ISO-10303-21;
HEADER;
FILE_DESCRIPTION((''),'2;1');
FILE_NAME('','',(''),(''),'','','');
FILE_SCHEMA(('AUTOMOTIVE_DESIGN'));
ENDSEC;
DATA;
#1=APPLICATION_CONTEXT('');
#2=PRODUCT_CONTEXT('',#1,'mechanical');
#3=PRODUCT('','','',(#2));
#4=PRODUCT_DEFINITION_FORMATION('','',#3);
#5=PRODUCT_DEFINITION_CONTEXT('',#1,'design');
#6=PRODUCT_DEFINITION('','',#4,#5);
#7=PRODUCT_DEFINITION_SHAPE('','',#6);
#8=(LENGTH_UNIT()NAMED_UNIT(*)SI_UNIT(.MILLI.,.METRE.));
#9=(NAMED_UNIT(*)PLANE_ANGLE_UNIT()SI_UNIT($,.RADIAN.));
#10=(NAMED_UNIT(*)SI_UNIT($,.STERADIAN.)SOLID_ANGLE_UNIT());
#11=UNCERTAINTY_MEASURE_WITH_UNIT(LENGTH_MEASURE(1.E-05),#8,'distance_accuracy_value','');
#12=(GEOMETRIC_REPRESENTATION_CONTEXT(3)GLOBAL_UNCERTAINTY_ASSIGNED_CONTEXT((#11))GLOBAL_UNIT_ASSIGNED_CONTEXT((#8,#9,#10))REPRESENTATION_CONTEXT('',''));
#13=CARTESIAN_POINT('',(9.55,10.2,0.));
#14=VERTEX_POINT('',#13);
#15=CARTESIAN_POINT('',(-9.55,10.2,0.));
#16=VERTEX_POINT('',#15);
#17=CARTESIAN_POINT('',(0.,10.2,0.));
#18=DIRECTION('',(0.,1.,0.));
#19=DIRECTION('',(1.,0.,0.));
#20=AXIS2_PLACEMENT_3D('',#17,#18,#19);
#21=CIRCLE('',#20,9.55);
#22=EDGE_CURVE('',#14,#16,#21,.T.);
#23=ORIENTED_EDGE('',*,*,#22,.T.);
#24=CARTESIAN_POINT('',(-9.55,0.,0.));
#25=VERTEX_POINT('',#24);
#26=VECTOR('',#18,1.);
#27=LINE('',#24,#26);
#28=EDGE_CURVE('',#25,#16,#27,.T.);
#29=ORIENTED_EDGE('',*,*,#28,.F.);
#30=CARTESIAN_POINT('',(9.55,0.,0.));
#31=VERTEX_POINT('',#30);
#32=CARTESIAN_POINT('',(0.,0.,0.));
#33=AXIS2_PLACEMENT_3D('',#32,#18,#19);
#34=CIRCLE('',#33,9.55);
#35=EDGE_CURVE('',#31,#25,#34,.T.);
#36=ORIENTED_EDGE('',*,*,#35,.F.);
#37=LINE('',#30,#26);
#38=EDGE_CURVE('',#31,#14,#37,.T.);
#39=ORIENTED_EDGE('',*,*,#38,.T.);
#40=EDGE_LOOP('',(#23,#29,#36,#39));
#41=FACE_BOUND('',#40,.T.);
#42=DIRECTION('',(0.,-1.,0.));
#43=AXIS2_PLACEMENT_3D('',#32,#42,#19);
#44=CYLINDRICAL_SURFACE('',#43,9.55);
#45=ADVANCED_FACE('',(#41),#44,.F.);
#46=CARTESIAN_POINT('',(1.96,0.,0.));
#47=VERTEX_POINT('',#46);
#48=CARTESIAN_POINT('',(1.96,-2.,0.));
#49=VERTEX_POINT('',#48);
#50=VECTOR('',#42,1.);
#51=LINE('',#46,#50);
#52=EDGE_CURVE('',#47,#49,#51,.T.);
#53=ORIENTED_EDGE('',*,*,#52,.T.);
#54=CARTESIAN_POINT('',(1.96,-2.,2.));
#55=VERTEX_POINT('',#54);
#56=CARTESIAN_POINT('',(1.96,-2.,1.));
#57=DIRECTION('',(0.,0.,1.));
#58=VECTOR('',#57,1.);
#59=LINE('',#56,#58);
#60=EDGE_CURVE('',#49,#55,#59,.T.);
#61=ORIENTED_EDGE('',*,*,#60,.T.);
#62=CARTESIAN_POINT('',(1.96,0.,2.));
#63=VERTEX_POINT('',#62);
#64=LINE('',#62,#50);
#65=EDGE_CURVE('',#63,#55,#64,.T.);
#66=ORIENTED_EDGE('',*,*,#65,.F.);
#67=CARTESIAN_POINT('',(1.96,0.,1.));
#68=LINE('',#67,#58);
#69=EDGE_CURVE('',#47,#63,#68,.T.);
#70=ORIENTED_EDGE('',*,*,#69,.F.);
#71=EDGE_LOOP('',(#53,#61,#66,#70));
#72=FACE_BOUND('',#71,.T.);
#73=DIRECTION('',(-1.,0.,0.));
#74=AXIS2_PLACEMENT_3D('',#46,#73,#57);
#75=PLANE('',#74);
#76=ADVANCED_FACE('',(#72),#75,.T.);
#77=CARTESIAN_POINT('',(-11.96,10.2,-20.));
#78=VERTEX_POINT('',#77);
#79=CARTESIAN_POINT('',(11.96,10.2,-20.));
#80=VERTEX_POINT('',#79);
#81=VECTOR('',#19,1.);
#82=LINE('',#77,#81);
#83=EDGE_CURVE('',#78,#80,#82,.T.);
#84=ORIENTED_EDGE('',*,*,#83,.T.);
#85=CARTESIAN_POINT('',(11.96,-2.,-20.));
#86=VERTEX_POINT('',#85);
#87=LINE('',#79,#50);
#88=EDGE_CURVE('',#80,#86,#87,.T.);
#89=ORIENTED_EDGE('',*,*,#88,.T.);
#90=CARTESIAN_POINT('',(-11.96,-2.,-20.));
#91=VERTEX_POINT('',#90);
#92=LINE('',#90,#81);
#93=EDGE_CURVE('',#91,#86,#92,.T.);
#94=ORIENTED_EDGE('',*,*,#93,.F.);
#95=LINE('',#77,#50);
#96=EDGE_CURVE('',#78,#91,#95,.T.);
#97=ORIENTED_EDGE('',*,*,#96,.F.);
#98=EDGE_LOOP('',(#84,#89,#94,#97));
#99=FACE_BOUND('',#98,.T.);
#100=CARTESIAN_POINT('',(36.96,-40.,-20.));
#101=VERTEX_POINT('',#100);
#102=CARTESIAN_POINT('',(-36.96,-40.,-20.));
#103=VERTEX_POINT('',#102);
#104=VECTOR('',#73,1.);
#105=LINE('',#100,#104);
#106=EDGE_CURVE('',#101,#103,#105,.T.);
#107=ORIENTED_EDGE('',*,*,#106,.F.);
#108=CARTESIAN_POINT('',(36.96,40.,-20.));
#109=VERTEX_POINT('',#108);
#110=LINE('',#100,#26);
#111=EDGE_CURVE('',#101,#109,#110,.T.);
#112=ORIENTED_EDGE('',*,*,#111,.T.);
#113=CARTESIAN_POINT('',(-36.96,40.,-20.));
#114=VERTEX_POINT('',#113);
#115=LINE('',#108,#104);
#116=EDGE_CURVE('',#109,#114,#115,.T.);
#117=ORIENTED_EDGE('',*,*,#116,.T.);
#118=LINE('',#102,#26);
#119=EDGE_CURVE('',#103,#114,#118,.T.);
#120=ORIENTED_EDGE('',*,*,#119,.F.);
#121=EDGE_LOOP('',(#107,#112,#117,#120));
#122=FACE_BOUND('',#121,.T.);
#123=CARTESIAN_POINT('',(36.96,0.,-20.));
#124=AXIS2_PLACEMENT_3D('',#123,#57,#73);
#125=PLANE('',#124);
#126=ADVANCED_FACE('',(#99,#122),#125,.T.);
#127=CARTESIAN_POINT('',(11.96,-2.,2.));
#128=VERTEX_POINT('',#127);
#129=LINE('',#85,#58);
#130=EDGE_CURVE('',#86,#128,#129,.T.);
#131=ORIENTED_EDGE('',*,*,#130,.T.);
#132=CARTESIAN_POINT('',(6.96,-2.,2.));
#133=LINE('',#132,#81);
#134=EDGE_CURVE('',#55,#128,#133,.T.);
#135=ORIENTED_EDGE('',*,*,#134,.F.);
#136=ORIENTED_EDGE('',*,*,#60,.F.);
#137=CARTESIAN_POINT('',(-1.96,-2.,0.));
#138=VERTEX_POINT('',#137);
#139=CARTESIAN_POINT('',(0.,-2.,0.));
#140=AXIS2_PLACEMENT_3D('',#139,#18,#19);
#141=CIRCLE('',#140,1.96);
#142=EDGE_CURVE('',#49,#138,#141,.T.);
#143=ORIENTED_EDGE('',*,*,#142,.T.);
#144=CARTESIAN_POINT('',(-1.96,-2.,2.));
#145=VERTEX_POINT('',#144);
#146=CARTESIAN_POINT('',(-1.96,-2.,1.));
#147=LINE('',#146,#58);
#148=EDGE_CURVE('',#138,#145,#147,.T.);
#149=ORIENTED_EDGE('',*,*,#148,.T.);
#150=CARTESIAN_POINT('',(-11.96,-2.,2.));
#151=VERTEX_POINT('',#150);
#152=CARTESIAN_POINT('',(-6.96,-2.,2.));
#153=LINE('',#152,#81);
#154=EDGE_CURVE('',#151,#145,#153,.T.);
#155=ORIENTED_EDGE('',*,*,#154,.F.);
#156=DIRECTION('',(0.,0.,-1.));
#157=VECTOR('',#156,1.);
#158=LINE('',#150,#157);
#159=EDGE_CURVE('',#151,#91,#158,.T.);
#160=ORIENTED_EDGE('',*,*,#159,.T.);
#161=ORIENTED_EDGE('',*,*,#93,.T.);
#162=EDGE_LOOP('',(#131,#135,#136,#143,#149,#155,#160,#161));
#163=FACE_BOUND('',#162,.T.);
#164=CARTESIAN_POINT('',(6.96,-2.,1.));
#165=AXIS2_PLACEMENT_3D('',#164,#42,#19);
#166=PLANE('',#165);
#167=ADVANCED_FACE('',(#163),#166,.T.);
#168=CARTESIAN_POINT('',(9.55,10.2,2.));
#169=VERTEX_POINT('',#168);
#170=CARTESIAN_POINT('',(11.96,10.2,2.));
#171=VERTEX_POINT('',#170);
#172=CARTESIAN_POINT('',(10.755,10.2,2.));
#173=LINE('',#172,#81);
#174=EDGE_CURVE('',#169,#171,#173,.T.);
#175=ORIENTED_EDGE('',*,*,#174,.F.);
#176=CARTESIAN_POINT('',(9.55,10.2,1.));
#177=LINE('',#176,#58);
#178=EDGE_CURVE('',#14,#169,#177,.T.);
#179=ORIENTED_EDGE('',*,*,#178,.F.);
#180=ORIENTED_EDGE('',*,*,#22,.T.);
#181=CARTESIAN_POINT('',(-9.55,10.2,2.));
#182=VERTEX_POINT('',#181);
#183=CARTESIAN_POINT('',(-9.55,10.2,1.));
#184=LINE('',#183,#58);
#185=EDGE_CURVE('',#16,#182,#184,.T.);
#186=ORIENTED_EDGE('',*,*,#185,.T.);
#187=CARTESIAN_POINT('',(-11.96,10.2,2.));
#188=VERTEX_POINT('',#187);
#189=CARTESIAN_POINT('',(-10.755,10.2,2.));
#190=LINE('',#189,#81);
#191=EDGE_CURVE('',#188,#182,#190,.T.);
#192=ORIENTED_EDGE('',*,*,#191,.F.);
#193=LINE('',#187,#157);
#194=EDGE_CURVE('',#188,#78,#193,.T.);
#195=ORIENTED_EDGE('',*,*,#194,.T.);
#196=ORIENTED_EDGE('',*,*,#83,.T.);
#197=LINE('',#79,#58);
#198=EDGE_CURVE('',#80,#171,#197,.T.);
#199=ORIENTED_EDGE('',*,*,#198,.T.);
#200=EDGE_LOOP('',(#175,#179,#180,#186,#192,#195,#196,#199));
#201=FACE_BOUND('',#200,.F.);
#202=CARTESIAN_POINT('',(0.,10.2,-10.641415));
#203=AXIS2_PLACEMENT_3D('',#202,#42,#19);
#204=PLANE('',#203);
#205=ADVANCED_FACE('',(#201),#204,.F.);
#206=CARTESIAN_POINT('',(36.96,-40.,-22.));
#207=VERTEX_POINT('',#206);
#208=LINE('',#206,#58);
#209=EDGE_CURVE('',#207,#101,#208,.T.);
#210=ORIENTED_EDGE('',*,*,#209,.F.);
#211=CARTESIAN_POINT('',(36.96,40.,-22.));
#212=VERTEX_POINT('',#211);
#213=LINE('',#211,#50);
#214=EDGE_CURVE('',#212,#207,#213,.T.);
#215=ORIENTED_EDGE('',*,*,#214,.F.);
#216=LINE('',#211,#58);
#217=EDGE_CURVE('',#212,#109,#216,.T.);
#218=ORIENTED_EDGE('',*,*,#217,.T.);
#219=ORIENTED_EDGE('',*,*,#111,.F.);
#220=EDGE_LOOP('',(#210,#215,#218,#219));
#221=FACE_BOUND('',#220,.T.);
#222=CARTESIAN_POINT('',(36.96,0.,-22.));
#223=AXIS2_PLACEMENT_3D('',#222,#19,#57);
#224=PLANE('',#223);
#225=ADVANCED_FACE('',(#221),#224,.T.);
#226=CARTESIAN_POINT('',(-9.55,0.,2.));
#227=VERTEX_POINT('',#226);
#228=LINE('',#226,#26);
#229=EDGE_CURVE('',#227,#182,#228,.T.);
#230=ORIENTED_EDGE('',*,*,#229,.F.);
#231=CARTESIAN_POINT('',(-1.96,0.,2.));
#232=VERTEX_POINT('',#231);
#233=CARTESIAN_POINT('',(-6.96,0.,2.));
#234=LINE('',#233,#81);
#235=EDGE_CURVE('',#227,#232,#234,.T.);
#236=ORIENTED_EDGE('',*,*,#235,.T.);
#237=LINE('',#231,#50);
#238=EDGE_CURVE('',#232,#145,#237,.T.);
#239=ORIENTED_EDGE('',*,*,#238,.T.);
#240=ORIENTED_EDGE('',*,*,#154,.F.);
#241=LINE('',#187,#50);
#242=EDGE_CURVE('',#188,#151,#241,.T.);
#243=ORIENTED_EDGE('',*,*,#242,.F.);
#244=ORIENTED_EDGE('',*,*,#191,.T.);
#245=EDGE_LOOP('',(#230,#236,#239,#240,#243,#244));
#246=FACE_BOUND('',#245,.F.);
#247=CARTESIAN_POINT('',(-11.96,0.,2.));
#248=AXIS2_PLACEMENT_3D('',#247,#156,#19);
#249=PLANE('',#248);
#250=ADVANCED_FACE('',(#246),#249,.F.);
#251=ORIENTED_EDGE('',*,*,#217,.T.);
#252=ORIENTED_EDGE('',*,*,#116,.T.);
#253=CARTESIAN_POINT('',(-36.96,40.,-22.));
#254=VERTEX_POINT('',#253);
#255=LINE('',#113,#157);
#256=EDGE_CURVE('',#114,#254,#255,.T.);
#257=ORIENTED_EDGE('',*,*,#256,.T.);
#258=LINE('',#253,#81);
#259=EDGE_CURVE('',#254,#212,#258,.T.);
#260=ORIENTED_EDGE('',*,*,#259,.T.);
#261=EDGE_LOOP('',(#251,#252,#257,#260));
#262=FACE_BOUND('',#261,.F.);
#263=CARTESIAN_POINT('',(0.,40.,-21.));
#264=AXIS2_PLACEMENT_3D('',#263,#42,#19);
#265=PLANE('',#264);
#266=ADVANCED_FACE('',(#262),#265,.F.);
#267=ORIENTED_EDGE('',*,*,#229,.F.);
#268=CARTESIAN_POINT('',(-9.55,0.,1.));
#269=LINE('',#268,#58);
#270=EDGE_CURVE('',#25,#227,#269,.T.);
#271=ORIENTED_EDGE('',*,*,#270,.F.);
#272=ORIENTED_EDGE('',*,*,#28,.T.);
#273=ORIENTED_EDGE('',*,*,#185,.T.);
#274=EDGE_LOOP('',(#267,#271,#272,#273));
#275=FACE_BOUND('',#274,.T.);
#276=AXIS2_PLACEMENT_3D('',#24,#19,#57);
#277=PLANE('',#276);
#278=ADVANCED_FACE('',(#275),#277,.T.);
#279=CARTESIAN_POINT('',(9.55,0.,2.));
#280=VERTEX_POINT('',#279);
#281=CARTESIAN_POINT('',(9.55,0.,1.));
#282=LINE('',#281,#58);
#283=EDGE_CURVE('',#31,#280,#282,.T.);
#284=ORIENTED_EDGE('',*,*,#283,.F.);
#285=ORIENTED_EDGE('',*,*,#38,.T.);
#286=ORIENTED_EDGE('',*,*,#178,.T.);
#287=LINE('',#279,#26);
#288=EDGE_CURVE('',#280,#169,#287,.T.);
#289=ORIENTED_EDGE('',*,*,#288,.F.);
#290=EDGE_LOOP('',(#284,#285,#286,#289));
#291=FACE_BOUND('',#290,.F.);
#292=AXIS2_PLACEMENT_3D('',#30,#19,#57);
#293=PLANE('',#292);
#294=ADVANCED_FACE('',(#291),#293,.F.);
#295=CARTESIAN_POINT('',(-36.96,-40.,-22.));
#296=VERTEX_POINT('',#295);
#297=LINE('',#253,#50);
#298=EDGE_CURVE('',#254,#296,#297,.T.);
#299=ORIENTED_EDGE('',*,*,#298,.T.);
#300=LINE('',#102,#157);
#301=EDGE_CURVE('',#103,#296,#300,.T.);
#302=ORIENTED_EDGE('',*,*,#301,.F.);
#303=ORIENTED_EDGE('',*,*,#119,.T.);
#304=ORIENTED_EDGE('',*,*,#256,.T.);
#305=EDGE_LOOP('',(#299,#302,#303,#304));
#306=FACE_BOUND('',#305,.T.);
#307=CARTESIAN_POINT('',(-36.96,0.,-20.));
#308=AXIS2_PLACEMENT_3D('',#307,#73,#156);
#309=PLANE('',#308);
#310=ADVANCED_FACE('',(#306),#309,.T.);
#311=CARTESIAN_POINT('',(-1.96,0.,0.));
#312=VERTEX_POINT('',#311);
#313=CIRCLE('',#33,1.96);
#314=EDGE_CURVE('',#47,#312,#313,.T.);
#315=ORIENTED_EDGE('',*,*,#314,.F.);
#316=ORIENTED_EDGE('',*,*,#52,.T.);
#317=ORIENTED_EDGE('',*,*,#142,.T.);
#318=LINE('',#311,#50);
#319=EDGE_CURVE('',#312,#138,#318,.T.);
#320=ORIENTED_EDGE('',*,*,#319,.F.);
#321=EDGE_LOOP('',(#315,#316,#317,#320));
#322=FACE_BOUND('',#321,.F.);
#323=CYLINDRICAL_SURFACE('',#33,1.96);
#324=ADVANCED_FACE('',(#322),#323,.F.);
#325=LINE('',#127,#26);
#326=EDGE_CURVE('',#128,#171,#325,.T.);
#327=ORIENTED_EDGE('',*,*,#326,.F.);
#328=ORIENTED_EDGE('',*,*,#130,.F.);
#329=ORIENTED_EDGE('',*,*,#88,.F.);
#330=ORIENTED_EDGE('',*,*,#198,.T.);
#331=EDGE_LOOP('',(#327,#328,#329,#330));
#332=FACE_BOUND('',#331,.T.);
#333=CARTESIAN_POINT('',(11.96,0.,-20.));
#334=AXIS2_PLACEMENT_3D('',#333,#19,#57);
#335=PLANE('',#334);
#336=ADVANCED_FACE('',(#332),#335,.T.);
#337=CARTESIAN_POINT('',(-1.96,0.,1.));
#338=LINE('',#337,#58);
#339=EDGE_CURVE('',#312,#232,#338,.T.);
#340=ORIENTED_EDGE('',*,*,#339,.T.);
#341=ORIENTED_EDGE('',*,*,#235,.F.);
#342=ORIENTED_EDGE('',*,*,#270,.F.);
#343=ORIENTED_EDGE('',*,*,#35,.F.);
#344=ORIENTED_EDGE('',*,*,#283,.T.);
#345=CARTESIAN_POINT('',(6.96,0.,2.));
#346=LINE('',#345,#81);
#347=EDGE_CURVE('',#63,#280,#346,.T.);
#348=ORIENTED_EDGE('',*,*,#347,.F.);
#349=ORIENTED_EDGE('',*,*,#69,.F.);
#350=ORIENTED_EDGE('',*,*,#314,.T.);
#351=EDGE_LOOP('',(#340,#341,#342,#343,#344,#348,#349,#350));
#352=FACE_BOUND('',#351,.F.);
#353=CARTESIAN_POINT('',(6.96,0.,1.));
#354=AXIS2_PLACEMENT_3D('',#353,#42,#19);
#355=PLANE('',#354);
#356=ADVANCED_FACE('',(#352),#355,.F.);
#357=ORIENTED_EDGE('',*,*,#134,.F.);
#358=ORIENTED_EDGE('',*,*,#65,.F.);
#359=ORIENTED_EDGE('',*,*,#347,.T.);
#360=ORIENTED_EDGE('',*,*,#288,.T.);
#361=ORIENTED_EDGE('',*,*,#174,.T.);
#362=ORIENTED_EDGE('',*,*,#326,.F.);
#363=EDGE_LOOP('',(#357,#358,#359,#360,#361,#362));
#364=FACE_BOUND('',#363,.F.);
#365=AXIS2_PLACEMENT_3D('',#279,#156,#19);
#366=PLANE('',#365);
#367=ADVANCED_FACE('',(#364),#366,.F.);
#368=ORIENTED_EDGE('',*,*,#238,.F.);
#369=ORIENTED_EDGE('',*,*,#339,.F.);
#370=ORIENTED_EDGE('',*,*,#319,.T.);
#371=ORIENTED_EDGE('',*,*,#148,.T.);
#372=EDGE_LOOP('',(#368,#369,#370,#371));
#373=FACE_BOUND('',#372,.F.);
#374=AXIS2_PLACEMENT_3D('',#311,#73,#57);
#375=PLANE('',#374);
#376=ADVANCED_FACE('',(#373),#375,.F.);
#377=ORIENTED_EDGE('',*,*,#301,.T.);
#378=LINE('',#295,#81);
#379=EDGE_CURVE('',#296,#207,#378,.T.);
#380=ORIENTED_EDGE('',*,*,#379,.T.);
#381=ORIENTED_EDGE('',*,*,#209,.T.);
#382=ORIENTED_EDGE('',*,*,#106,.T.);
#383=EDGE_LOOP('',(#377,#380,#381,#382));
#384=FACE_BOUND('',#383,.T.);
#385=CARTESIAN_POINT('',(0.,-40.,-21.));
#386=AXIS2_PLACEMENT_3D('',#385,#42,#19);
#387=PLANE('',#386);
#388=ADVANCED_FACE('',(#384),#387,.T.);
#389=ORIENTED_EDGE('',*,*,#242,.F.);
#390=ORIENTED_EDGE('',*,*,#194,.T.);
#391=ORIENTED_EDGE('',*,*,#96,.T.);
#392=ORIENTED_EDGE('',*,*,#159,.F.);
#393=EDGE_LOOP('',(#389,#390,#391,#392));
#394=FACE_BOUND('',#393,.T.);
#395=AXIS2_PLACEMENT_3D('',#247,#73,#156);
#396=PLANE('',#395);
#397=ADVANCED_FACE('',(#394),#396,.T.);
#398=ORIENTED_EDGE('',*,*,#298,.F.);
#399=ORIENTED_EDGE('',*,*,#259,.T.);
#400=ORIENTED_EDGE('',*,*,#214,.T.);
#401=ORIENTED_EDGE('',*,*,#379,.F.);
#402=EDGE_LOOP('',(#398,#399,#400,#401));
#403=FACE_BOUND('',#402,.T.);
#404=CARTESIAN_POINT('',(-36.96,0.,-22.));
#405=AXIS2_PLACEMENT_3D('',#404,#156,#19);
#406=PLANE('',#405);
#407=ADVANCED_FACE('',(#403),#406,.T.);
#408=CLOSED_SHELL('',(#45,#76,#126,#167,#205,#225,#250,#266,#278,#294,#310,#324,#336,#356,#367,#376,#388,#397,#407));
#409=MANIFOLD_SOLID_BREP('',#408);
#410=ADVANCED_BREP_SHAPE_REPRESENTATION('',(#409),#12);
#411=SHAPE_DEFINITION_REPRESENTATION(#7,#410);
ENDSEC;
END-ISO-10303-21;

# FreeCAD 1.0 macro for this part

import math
import FreeCAD as App
import Part
import Sketcher

doc = App.newDocument("Part")
body = doc.addObject("PartDesign::Body", "Body")

sketch1 = body.newObject("Sketcher::SketchObject", "Sketch")
sketch1.AttachmentSupport = (doc.getObject("XZ_Plane"), [""])
sketch1.MapMode = "FlatFace"
sketch1.addGeometry([
    Part.LineSegment(App.Vector(2, 2, 0), App.Vector(2, 0, 0)),
    Part.ArcOfCircle(Part.Circle(App.Vector(0, 0, 0), App.Vector(0, 0, 1), 2), math.radians(180), math.radians(360)),
    Part.LineSegment(App.Vector(-2, 0, 0), App.Vector(-2, 2, 0)),
    Part.LineSegment(App.Vector(-2, 2, 0), App.Vector(-12, 2, 0)),
    Part.LineSegment(App.Vector(-12, 2, 0), App.Vector(-12, -20, 0)),
    Part.LineSegment(App.Vector(-12, -20, 0), App.Vector(12, -20, 0)),
    Part.LineSegment(App.Vector(12, -20, 0), App.Vector(12, 2, 0)),
    Part.LineSegment(App.Vector(12, 2, 0), App.Vector(2, 2, 0)),
], False)
sketch1.addConstraint([
    Sketcher.Constraint("Tangent", 0, 2, 1, 2),
    Sketcher.Constraint("Tangent", 1, 1, 2, 1),
    Sketcher.Constraint("Coincident", 2, 2, 3, 1),
    Sketcher.Constraint("Coincident", 3, 2, 4, 1),
    Sketcher.Constraint("Coincident", 4, 2, 5, 1),
    Sketcher.Constraint("Coincident", 5, 2, 6, 1),
    Sketcher.Constraint("Coincident", 6, 2, 7, 1),
    Sketcher.Constraint("Coincident", 7, 2, 0, 1),
    Sketcher.Constraint("Vertical", 0),
    Sketcher.Constraint("Vertical", 2),
    Sketcher.Constraint("Horizontal", 3),
    Sketcher.Constraint("Vertical", 4),
    Sketcher.Constraint("Horizontal", 5),
    Sketcher.Constraint("Vertical", 6),
    Sketcher.Constraint("Horizontal", 7),
    Sketcher.Constraint("Coincident", 1, 3, -1, 1),
    Sketcher.Constraint("Symmetric", 3, 2, 6, 2, -2),
    Sketcher.Constraint("DistanceX", 3, 2, 3, 1, 10.0),
    Sketcher.Constraint("DistanceY", 0, 2, 0, 1, 2.0),
    Sketcher.Constraint("DistanceY", 4, 2, 4, 1, 22.0),
    Sketcher.Constraint("Radius", 1, 1.96),
])
pad1 = body.newObject("PartDesign::Pad", "Pad")
pad1.Profile = sketch1
pad1.Length = 2

sketch2 = body.newObject("Sketcher::SketchObject", "Sketch001")
sketch2.AttachmentSupport = (doc.getObject("XZ_Plane"), [""])
sketch2.MapMode = "FlatFace"
sketch2.addGeometry([
    Part.ArcOfCircle(Part.Circle(App.Vector(0, 0, 0), App.Vector(0, 0, 1), 9.6), math.radians(180), math.radians(360)),
    Part.LineSegment(App.Vector(-9.6, 0, 0), App.Vector(-9.6, 2, 0)),
    Part.LineSegment(App.Vector(-9.6, 2, 0), App.Vector(-12, 2, 0)),
    Part.LineSegment(App.Vector(-12, 2, 0), App.Vector(-12, -20, 0)),
    Part.LineSegment(App.Vector(-12, -20, 0), App.Vector(12, -20, 0)),
    Part.LineSegment(App.Vector(12, -20, 0), App.Vector(12, 2, 0)),
    Part.LineSegment(App.Vector(12, 2, 0), App.Vector(9.6, 2, 0)),
    Part.LineSegment(App.Vector(9.6, 2, 0), App.Vector(9.6, 0, 0)),
], False)
sketch2.addConstraint([
    Sketcher.Constraint("Tangent", 0, 1, 1, 1),
    Sketcher.Constraint("Coincident", 1, 2, 2, 1),
    Sketcher.Constraint("Coincident", 2, 2, 3, 1),
    Sketcher.Constraint("Coincident", 3, 2, 4, 1),
    Sketcher.Constraint("Coincident", 4, 2, 5, 1),
    Sketcher.Constraint("Coincident", 5, 2, 6, 1),
    Sketcher.Constraint("Coincident", 6, 2, 7, 1),
    Sketcher.Constraint("Tangent", 7, 2, 0, 2),
    Sketcher.Constraint("Vertical", 1),
    Sketcher.Constraint("Horizontal", 2),
    Sketcher.Constraint("Vertical", 3),
    Sketcher.Constraint("Horizontal", 4),
    Sketcher.Constraint("Vertical", 5),
    Sketcher.Constraint("Horizontal", 6),
    Sketcher.Constraint("Vertical", 7),
    Sketcher.Constraint("Coincident", 0, 3, -1, 1),
    Sketcher.Constraint("Symmetric", 2, 2, 5, 2, -2),
    Sketcher.Constraint("DistanceY", 1, 1, 1, 2, 2.0),
    Sketcher.Constraint("DistanceY", 3, 2, 3, 1, 22.0),
    Sketcher.Constraint("Radius", 0, 9.55),
    Sketcher.Constraint("DistanceX", 2, 2, 2, 1, 2.41),
])
pad2 = body.newObject("PartDesign::Pad", "Pad001")
pad2.Profile = sketch2
pad2.Length = 10.2
pad2.Reversed = True

sketch3 = body.newObject("Sketcher::SketchObject", "Sketch002")
sketch3.AttachmentSupport = (doc.getObject("XZ_Plane"), [""])
sketch3.MapMode = "FlatFace"
sketch3.addGeometry([
    Part.LineSegment(App.Vector(-37, -20, 0), App.Vector(-37, -22, 0)),
    Part.LineSegment(App.Vector(-37, -22, 0), App.Vector(37, -22, 0)),
    Part.LineSegment(App.Vector(37, -22, 0), App.Vector(37, -20, 0)),
    Part.LineSegment(App.Vector(37, -20, 0), App.Vector(-37, -20, 0)),
], False)
sketch3.addConstraint([
    Sketcher.Constraint("Coincident", 0, 2, 1, 1),
    Sketcher.Constraint("Coincident", 1, 2, 2, 1),
    Sketcher.Constraint("Coincident", 2, 2, 3, 1),
    Sketcher.Constraint("Coincident", 3, 2, 0, 1),
    Sketcher.Constraint("Vertical", 0),
    Sketcher.Constraint("Horizontal", 1),
    Sketcher.Constraint("Vertical", 2),
    Sketcher.Constraint("Horizontal", 3),
    Sketcher.Constraint("DistanceY", 0, 2, 0, 1, 2.0),
    Sketcher.Constraint("DistanceY", 0, 2, -1, 1, 22.0),
    Sketcher.Constraint("DistanceX", 1, 1, 1, 2, 73.92),
    Sketcher.Constraint("DistanceX", 0, 2, -1, 1, 36.96),
])
pad3 = body.newObject("PartDesign::Pad", "Pad002")
pad3.Profile = sketch3
pad3.Length = 80
pad3.Midplane = True

doc.recompute()
